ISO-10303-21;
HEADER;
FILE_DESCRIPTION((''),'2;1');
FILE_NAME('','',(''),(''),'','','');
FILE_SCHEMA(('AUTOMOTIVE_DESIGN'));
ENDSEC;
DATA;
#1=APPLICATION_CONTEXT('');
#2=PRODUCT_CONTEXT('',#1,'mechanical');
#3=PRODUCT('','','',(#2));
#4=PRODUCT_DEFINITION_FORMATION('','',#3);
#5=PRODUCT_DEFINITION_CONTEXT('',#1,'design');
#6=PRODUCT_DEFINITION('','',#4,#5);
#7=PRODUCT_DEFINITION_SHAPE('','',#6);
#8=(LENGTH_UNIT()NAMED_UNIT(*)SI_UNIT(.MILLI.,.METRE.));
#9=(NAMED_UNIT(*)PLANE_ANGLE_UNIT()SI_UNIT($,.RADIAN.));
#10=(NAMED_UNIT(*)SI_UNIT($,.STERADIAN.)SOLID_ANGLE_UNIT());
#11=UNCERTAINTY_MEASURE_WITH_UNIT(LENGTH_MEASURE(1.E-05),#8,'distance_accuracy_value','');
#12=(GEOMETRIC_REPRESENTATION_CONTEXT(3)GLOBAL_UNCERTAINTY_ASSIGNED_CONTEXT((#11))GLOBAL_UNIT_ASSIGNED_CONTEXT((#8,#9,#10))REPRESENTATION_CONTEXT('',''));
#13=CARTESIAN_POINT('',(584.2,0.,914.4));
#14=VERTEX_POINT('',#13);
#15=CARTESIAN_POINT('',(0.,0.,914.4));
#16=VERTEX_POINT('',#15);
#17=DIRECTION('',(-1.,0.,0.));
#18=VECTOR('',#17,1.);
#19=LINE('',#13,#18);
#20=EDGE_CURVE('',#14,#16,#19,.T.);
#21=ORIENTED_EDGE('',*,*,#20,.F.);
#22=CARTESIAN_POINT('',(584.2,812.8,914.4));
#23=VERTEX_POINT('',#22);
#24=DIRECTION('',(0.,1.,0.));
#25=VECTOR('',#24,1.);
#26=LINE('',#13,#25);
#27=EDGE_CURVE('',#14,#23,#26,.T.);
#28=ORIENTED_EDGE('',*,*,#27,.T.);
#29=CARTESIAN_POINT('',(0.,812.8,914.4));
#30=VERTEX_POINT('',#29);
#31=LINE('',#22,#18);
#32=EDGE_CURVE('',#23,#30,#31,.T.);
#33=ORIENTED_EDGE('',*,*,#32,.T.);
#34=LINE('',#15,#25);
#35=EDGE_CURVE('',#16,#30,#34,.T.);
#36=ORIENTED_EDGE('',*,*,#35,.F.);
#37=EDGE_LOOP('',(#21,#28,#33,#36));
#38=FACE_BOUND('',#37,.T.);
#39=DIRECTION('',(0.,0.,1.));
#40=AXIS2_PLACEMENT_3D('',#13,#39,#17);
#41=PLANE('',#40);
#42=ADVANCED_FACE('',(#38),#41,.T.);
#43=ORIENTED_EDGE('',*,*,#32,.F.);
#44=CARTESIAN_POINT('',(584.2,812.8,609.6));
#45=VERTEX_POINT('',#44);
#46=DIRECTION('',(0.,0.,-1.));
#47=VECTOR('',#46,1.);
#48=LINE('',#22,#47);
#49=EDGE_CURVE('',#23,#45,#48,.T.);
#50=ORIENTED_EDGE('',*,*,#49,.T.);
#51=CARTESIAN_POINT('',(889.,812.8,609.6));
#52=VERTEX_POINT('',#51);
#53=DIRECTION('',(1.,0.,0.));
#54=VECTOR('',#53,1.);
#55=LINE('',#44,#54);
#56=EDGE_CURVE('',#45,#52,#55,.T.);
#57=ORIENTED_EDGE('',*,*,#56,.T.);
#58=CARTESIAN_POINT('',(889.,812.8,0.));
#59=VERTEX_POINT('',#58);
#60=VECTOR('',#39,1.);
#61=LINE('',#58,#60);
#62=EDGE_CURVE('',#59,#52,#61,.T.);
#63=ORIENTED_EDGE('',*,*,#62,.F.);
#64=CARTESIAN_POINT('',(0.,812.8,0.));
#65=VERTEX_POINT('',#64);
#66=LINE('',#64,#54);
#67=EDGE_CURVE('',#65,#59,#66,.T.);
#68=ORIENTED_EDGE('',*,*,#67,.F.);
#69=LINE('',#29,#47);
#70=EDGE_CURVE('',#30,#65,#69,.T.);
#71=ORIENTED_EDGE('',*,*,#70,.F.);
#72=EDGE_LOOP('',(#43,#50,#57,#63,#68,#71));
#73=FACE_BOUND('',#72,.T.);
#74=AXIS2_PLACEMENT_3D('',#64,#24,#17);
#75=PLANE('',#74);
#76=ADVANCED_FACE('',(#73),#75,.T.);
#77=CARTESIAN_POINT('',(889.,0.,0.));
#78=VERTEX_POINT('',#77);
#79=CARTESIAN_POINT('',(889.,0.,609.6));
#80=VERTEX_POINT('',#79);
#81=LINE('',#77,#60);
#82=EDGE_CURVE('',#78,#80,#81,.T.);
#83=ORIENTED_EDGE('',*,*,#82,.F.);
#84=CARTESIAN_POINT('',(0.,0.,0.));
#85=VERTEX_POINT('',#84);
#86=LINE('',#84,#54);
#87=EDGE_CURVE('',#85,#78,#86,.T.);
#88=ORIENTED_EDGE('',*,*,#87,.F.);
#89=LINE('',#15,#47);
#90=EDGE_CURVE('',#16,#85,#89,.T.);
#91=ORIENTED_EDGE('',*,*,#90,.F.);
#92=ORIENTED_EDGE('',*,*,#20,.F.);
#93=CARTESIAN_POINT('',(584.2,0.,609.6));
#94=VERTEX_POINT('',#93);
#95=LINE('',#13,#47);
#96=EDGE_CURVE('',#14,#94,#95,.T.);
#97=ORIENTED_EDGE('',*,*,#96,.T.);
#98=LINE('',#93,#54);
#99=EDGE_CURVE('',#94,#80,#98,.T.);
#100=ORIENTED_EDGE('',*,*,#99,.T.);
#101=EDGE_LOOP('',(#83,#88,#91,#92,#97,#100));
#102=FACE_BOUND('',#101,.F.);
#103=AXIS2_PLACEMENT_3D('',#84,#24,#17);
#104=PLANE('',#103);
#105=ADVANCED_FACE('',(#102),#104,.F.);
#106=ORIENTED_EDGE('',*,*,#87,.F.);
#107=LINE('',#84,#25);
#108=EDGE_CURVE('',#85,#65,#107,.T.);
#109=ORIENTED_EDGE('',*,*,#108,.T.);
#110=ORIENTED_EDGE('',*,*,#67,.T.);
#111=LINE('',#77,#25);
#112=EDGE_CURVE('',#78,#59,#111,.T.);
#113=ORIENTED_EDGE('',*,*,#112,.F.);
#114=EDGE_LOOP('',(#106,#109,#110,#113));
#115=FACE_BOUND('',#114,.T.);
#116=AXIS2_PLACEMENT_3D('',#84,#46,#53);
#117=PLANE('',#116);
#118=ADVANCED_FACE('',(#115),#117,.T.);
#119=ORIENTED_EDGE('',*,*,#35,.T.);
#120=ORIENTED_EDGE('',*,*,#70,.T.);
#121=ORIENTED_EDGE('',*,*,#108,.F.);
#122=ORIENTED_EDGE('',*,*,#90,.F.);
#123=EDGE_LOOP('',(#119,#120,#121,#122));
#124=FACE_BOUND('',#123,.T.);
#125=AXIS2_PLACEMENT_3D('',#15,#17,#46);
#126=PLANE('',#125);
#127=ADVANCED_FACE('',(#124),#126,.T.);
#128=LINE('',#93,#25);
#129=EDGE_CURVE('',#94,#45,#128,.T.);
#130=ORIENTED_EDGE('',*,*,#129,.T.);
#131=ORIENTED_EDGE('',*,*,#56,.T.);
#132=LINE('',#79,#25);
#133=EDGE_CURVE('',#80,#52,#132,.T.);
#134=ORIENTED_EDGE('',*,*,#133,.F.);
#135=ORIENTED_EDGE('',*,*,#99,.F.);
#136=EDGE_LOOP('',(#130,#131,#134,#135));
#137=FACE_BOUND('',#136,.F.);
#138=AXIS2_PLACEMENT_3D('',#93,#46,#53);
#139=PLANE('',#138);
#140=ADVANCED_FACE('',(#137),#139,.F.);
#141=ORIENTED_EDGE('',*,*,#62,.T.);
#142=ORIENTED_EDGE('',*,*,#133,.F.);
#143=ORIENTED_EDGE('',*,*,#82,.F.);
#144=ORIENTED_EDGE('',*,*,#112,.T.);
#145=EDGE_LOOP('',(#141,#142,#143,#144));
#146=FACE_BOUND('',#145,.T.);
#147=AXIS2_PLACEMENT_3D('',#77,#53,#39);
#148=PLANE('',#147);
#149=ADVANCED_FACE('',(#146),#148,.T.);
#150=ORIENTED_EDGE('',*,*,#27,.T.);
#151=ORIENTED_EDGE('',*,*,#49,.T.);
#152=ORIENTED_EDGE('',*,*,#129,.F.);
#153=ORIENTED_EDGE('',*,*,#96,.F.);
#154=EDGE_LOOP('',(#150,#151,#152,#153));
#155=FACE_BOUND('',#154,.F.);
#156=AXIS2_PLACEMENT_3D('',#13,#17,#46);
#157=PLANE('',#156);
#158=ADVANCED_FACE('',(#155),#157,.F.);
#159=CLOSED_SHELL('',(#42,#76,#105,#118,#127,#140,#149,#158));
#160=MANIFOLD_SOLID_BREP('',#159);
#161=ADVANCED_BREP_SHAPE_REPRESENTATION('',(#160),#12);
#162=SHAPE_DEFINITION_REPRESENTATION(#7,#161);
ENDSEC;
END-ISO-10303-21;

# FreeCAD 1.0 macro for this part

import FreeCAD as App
import Part
import Sketcher

V = App.Vector
Q = App.Units.Quantity

doc = App.newDocument("Part")
params = doc.addObject("Spreadsheet::Sheet", "Params")
for row, (alias, value) in enumerate([
    ("sketch1_width", "35 in"),
    ("sketch1_width2", "23 in"),
    ("sketch1_height", "36 in"),
    ("pad1_length", "32 in"),
], start=1):
    params.set(f"A{row}", alias)
    params.set(f"B{row}", "=" + value)
    params.setAlias(f"B{row}", alias)

body = doc.addObject("PartDesign::Body", "Body")

# Sketch on XZ plane
sketch1 = body.newObject("Sketcher::SketchObject", "Sketch")
sketch1.AttachmentSupport = (doc.getObject("XZ_Plane"), [""])
sketch1.MapMode = "FlatFace"
sketch1.addGeometry([
    Part.LineSegment(V(889, 0, 0), V(0, 0, 0)),  # 0
    Part.LineSegment(V(0, 0, 0), V(0, 914, 0)),  # 1
    Part.LineSegment(V(0, 914, 0), V(584, 914, 0)),  # 2
    Part.LineSegment(V(584, 914, 0), V(584, 610, 0)),  # 3
    Part.LineSegment(V(584, 610, 0), V(889, 610, 0)),  # 4
    Part.LineSegment(V(889, 610, 0), V(889, 0, 0)),  # 5
], False)
sketch1.addConstraint([
    Sketcher.Constraint("Coincident", 0, 2, 1, 1),
    Sketcher.Constraint("Coincident", 1, 2, 2, 1),
    Sketcher.Constraint("Coincident", 2, 2, 3, 1),
    Sketcher.Constraint("Coincident", 3, 2, 4, 1),
    Sketcher.Constraint("Coincident", 4, 2, 5, 1),
    Sketcher.Constraint("Coincident", 5, 2, 0, 1),
    Sketcher.Constraint("Horizontal", 0),
    Sketcher.Constraint("Vertical", 1),
    Sketcher.Constraint("Horizontal", 2),
    Sketcher.Constraint("Vertical", 3),
    Sketcher.Constraint("Horizontal", 4),
    Sketcher.Constraint("Vertical", 5),
    Sketcher.Constraint("Coincident", 0, 2, -1, 1),
    Sketcher.Constraint("Equal", 4, 3),
    Sketcher.Constraint("DistanceX", 0, 2, 0, 1, Q("35 in")),
    Sketcher.Constraint("DistanceX", 2, 1, 2, 2, Q("23 in")),
    Sketcher.Constraint("DistanceY", 1, 1, 1, 2, Q("36 in")),
])
sketch1.setExpression("Constraints[14]", "Params.sketch1_width")
sketch1.setExpression("Constraints[15]", "Params.sketch1_width2")
sketch1.setExpression("Constraints[16]", "Params.sketch1_height")
pad1 = body.newObject("PartDesign::Pad", "Pad")
pad1.Profile = sketch1
pad1.setExpression("Length", "Params.pad1_length")
pad1.Reversed = True

doc.recompute()
